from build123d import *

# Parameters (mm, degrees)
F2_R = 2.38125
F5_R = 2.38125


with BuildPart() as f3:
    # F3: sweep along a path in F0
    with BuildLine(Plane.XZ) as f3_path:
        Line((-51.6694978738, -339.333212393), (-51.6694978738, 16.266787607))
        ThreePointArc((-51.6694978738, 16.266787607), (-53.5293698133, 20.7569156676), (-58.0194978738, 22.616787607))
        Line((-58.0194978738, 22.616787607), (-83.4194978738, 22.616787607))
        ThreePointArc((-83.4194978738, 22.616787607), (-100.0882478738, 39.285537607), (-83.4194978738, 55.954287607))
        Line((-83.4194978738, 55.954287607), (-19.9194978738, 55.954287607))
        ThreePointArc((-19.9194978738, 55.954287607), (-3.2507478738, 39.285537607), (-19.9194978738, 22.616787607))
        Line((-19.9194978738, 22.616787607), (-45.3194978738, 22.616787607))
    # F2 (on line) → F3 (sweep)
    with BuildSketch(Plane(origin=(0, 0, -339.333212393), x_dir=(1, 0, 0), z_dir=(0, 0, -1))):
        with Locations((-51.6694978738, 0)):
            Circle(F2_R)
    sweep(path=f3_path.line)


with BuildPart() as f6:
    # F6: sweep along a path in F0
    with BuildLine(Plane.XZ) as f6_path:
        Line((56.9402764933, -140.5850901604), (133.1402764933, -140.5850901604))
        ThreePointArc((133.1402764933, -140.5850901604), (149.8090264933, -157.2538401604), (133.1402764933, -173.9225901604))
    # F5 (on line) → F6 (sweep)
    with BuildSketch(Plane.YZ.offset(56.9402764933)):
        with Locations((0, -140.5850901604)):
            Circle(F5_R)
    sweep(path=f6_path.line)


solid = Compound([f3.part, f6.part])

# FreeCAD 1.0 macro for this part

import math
import FreeCAD as App
import Part
import Sketcher
from FreeCAD import Vector
Q = App.Units.Quantity

doc = App.newDocument("Part")
body = doc.addObject("PartDesign::Body", "Body")

# Sketch on XY plane
sketch1 = doc.addObject("Sketcher::SketchObject", "Sketch")
body.addObject(sketch1)
sketch1.AttachmentSupport = (doc.XY_Plane, [""])
sketch1.MapMode = "FlatFace"
sketch1.AttachmentOffset = App.Placement(Vector(0, 0, -339.333212), App.Rotation())
sketch1.addGeometry(Part.Circle(Vector(-51.669498, 0, 0), Vector(0, 0, 1), 2.38125), False)
sketch1.addConstraint([
    Sketcher.Constraint("PointOnObject", 0, 3, -1),
    Sketcher.Constraint("Diameter", 0, Q("0.1875 in")),
    Sketcher.Constraint("DistanceX", 0, 3, -1, 1, Q("51.669498 mm")),
])

# Sketch on XZ plane
sketch2 = doc.addObject("Sketcher::SketchObject", "Sketch001")
body.addObject(sketch2)
sketch2.AttachmentSupport = (doc.XZ_Plane, [""])
sketch2.MapMode = "FlatFace"
sketch2.addGeometry([
    Part.LineSegment(Vector(-51.669498, -339.333212, 0), Vector(-51.669498, 16.266788, 0)),  # 0
    Part.ArcOfCircle(Part.Circle(Vector(-58.019498, 16.266788, 0), Vector(0, 0, 1), 6.35), math.radians(0), math.radians(90)),  # 1
    Part.LineSegment(Vector(-58.019498, 22.616788, 0), Vector(-83.419498, 22.616788, 0)),  # 2
    Part.ArcOfCircle(Part.Circle(Vector(-83.419498, 39.285538, 0), Vector(0, 0, 1), 16.66875), math.radians(90), math.radians(270)),  # 3
    Part.LineSegment(Vector(-83.419498, 55.954288, 0), Vector(-19.919498, 55.954288, 0)),  # 4
    Part.ArcOfCircle(Part.Circle(Vector(-19.919498, 39.285538, 0), Vector(0, 0, 1), 16.66875), math.radians(-90), math.radians(90)),  # 5
    Part.LineSegment(Vector(-19.919498, 22.616788, 0), Vector(-45.319498, 22.616788, 0)),  # 6
], False)
sketch2.addConstraint([
    Sketcher.Constraint("Tangent", 0, 2, 1, 1),
    Sketcher.Constraint("Tangent", 1, 2, 2, 1),
    Sketcher.Constraint("Tangent", 2, 2, 3, 2),
    Sketcher.Constraint("Tangent", 3, 1, 4, 1),
    Sketcher.Constraint("Tangent", 4, 2, 5, 2),
    Sketcher.Constraint("Tangent", 5, 1, 6, 1),
    Sketcher.Constraint("Vertical", 0),
    Sketcher.Constraint("Horizontal", 2),
    Sketcher.Constraint("Horizontal", 4),
    Sketcher.Constraint("Horizontal", 6),
    Sketcher.Constraint("Equal", 3, 5),
    Sketcher.Constraint("Equal", 2, 6),
    Sketcher.Constraint("DistanceX", 2, 2, 2, 1, Q("1 in")),
    Sketcher.Constraint("DistanceY", 0, 1, 0, 2, Q("14 in")),
    Sketcher.Constraint("Radius", 1, Q("0.25 in")),
    Sketcher.Constraint("DistanceX", 4, 1, 4, 2, Q("2.5 in")),
    Sketcher.Constraint("Radius", 3, Q("0.65625 in")),
    Sketcher.Constraint("DistanceX", 1, 3, -1, 1, Q("58.019498 mm")),
    Sketcher.Constraint("DistanceY", -1, 1, 1, 3, Q("16.266788 mm")),
])
doc.recompute()

additivepipe = doc.addObject("PartDesign::AdditivePipe", "AdditivePipe")
body.addObject(additivepipe)
additivepipe.Profile = sketch1
additivepipe.Spine = (sketch2, ["Edge1", "Edge2", "Edge3", "Edge4", "Edge5", "Edge6", "Edge7"])
body2 = doc.addObject("PartDesign::Body", "Body001")

# Sketch on YZ plane
sketch3 = doc.addObject("Sketcher::SketchObject", "Sketch002")
body2.addObject(sketch3)
sketch3.AttachmentSupport = (doc.getObject("YZ_Plane001"), [""])
sketch3.MapMode = "FlatFace"
sketch3.AttachmentOffset = App.Placement(Vector(0, 0, 56.940276), App.Rotation())
sketch3.addGeometry(Part.Circle(Vector(0, -140.58509, 0), Vector(0, 0, 1), 2.38125), False)
sketch3.addConstraint([
    Sketcher.Constraint("PointOnObject", 0, 3, -2),
    Sketcher.Constraint("Diameter", 0, Q("0.1875 in")),
    Sketcher.Constraint("DistanceY", 0, 3, -1, 1, Q("140.58509 mm")),
])

# Sketch on XZ plane
sketch4 = doc.addObject("Sketcher::SketchObject", "Sketch003")
body2.addObject(sketch4)
sketch4.AttachmentSupport = (doc.getObject("XZ_Plane001"), [""])
sketch4.MapMode = "FlatFace"
sketch4.addGeometry([
    Part.LineSegment(Vector(56.940276, -140.58509, 0), Vector(133.140276, -140.58509, 0)),
    Part.ArcOfCircle(Part.Circle(Vector(133.140276, -157.25384, 0), Vector(0, 0, 1), 16.66875), math.radians(-90), math.radians(90)),
], False)
sketch4.addConstraint([
    Sketcher.Constraint("Tangent", 0, 2, 1, 2),
    Sketcher.Constraint("Horizontal", 0),
    Sketcher.Constraint("Vertical", 0, 2, 1, 1),
    Sketcher.Constraint("DistanceX", 0, 1, 0, 2, Q("3 in")),
    Sketcher.Constraint("Radius", 1, Q("0.65625 in")),
    Sketcher.Constraint("DistanceY", 1, 3, -1, 1, Q("157.25384 mm")),
    Sketcher.Constraint("DistanceX", -1, 1, 1, 3, Q("133.140276 mm")),
])
doc.recompute()

additivepipe2 = doc.addObject("PartDesign::AdditivePipe", "AdditivePipe001")
body2.addObject(additivepipe2)
additivepipe2.Profile = sketch3
additivepipe2.Spine = (sketch4, ["Edge1", "Edge2"])

doc.recompute()
